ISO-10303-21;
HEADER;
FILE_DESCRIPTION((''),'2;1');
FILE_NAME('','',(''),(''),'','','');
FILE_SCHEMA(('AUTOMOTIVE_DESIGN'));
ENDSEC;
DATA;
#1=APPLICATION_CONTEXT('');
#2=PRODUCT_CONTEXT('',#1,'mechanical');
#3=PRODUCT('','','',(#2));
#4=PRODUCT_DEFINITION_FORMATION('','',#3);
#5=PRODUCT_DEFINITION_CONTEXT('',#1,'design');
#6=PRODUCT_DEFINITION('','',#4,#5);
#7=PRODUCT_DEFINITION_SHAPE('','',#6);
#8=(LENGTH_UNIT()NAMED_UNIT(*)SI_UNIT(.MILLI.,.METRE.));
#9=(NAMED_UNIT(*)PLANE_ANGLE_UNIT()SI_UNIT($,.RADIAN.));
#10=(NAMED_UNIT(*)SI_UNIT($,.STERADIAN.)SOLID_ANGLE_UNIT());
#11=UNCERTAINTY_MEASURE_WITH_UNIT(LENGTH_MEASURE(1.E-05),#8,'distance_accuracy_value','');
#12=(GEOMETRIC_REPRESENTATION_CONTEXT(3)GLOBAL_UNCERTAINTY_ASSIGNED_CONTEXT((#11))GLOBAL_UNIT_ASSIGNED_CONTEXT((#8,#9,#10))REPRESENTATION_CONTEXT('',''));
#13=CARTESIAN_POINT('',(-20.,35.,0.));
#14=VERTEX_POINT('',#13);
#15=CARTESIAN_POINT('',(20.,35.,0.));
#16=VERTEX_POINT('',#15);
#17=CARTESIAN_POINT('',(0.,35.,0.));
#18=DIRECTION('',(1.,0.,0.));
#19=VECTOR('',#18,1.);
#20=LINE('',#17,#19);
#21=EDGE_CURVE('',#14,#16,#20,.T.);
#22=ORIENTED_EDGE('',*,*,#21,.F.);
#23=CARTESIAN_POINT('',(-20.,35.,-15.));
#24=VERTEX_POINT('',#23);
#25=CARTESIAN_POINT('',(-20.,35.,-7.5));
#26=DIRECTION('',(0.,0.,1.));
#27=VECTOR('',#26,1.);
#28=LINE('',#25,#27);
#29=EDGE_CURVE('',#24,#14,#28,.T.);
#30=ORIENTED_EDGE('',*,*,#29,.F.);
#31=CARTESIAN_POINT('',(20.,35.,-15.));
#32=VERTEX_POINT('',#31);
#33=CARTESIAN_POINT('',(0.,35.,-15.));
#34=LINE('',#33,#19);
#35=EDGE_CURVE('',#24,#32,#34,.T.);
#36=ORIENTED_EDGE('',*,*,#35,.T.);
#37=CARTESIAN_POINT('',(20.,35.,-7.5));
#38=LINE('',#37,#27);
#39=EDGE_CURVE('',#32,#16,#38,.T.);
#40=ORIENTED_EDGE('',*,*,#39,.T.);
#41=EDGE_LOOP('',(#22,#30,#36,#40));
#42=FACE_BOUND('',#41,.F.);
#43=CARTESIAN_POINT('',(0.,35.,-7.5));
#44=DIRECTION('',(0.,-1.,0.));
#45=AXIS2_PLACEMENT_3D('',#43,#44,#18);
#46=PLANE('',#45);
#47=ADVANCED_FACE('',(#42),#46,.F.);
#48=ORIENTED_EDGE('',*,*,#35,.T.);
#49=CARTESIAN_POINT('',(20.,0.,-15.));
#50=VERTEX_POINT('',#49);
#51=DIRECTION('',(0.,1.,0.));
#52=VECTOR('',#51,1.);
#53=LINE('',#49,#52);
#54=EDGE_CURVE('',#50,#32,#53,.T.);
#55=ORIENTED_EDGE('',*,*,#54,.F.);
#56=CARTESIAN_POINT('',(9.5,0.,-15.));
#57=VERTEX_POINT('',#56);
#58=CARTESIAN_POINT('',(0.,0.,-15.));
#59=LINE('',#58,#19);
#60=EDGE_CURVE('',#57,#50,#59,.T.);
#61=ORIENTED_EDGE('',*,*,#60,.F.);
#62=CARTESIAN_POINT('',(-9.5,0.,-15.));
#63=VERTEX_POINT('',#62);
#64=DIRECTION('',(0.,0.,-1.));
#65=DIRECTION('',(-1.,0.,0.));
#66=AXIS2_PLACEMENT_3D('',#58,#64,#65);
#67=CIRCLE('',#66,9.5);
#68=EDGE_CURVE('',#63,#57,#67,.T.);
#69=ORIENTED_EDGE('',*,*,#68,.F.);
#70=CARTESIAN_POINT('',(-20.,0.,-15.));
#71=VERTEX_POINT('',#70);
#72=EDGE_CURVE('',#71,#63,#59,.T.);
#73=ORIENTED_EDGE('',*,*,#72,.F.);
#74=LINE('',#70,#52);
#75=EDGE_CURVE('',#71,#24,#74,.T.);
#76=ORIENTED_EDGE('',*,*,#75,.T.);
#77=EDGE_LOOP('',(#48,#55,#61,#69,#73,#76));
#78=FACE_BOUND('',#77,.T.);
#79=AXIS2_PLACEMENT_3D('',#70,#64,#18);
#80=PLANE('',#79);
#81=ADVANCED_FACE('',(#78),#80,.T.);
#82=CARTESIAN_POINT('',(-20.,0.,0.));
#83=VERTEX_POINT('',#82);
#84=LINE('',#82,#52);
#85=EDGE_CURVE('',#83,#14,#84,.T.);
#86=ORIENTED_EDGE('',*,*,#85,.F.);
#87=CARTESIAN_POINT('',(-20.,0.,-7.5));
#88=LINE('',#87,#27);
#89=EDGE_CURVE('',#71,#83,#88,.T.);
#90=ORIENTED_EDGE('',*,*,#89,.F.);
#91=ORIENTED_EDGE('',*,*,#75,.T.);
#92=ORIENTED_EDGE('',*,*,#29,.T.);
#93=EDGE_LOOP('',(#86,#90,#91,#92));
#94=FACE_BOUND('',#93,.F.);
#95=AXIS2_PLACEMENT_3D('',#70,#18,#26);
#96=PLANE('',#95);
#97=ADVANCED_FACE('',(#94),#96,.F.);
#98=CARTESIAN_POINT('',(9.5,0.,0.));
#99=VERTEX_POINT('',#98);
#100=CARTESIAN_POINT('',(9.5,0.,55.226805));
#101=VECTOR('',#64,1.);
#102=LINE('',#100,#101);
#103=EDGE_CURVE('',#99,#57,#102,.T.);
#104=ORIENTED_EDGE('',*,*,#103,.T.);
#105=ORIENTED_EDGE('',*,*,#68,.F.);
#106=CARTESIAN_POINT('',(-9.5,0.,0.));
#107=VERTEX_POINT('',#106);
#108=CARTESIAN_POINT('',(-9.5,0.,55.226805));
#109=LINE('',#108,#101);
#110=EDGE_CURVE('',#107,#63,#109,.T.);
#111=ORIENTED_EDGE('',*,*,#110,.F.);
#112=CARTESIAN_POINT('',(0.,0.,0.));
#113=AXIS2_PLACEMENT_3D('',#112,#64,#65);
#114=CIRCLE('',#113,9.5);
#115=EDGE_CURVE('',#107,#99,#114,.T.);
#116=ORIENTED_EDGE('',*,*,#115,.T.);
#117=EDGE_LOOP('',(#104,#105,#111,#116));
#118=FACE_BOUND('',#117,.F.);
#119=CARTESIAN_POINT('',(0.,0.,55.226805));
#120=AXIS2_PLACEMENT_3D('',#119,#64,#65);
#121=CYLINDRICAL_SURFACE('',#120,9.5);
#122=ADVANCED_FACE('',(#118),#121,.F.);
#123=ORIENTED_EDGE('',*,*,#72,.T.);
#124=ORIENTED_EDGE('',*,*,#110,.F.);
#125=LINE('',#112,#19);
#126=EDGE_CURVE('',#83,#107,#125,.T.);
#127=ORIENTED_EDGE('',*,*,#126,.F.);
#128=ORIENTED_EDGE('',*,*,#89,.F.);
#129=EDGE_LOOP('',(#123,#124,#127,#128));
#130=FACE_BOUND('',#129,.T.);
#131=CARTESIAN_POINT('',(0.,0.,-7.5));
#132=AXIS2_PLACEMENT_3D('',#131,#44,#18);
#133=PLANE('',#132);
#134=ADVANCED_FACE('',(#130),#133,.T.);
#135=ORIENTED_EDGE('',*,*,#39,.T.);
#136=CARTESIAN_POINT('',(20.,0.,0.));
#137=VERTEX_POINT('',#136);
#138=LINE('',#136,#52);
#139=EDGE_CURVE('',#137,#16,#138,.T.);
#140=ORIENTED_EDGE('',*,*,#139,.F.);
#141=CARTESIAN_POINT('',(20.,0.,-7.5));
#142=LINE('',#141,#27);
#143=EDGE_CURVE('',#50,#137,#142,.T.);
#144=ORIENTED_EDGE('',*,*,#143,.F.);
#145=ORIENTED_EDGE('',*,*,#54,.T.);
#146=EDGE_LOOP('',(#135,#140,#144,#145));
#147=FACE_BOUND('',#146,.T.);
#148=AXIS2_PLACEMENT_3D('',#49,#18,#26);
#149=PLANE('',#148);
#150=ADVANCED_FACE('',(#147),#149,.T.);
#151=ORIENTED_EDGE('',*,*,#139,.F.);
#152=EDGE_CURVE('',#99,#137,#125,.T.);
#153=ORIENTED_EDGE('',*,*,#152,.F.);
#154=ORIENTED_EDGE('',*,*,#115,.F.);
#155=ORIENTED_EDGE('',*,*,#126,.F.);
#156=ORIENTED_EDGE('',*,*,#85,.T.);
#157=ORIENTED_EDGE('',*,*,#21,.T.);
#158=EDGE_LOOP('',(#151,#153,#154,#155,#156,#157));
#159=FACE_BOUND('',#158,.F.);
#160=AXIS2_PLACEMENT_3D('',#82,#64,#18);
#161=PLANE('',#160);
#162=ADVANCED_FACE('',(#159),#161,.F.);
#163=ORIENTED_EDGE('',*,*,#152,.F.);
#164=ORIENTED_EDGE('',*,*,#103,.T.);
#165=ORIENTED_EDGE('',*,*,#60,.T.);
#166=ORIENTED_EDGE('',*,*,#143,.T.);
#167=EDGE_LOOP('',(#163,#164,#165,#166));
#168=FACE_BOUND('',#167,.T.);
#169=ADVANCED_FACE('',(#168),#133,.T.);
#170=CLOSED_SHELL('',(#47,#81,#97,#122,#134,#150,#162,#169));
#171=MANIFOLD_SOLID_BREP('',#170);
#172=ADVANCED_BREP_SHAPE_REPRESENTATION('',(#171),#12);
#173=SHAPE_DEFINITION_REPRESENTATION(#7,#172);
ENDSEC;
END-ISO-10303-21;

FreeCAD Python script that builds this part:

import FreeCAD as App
import Part
import Sketcher
Q = App.Units.Quantity

doc = App.newDocument("Part")
params = doc.addObject("Spreadsheet::Sheet", "Params")
for row, (alias, value) in enumerate([
    ("sketch1_width", "40 mm"),
    ("sketch1_height", "15 mm"),
    ("pad1_length", "35 mm"),
    ("sketch2_diameter", "19 mm"),
    ("hole_diameter", "19 mm"),
], start=1):
    params.set(f"A{row}", alias)
    params.set(f"B{row}", "=" + value)
    params.setAlias(f"B{row}", alias)

body = doc.addObject("PartDesign::Body", "Body")

sketch1 = doc.addObject("Sketcher::SketchObject", "Sketch")
body.addObject(sketch1)
sketch1.AttachmentSupport = (doc.XZ_Plane, [""])
sketch1.MapMode = "FlatFace"
sketch1.addGeometry(Part.LineSegment(App.Vector(-20, 0, 0), App.Vector(-20, -15, 0)), False)
sketch1.addGeometry(Part.LineSegment(App.Vector(-20, -15, 0), App.Vector(20, -15, 0)), False)
sketch1.addGeometry(Part.LineSegment(App.Vector(20, -15, 0), App.Vector(20, 0, 0)), False)
sketch1.addGeometry(Part.LineSegment(App.Vector(20, 0, 0), App.Vector(-20, 0, 0)), False)
sketch1.addConstraint(Sketcher.Constraint("Coincident", 0, 2, 1, 1))
sketch1.addConstraint(Sketcher.Constraint("Coincident", 1, 2, 2, 1))
sketch1.addConstraint(Sketcher.Constraint("Coincident", 2, 2, 3, 1))
sketch1.addConstraint(Sketcher.Constraint("Coincident", 3, 2, 0, 1))
sketch1.addConstraint(Sketcher.Constraint("Vertical", 0))
sketch1.addConstraint(Sketcher.Constraint("Horizontal", 1))
sketch1.addConstraint(Sketcher.Constraint("Vertical", 2))
sketch1.addConstraint(Sketcher.Constraint("Horizontal", 3))
sketch1.addConstraint(Sketcher.Constraint("Symmetric", 2, 2, 3, 2, -1, 1))
sketch1.addConstraint(Sketcher.Constraint("DistanceX", 1, 1, 1, 2, Q("40 mm")))
sketch1.addConstraint(Sketcher.Constraint("DistanceY", 0, 2, 0, 1, Q("15 mm")))
sketch1.setExpression("Constraints[9]", "Params.sketch1_width")
sketch1.setExpression("Constraints[10]", "Params.sketch1_height")
pad1 = doc.addObject("PartDesign::Pad", "Pad")
body.addObject(pad1)
pad1.Profile = sketch1
pad1.setExpression("Length", "Params.pad1_length")
pad1.Reversed = True

sketch2 = doc.addObject("Sketcher::SketchObject", "Sketch001")
body.addObject(sketch2)
sketch2.AttachmentSupport = (doc.XY_Plane, [""])
sketch2.MapMode = "FlatFace"
sketch2.addGeometry(Part.Circle(App.Vector(0, 0, 0), App.Vector(0, 0, 1), 9.5), False)
sketch2.addConstraint(Sketcher.Constraint("Coincident", 0, 3, -1, 1))
sketch2.addConstraint(Sketcher.Constraint("Diameter", 0, Q("19 mm")))
sketch2.setExpression("Constraints[1]", "Params.sketch2_diameter")
doc.recompute()
hole = doc.addObject("PartDesign::Hole", "Hole")
body.addObject(hole)
hole.Profile = sketch2
hole.ThreadType = "None"
hole.setExpression("Diameter", "Params.hole_diameter")
hole.DepthType = "ThroughAll"

doc.recompute()
